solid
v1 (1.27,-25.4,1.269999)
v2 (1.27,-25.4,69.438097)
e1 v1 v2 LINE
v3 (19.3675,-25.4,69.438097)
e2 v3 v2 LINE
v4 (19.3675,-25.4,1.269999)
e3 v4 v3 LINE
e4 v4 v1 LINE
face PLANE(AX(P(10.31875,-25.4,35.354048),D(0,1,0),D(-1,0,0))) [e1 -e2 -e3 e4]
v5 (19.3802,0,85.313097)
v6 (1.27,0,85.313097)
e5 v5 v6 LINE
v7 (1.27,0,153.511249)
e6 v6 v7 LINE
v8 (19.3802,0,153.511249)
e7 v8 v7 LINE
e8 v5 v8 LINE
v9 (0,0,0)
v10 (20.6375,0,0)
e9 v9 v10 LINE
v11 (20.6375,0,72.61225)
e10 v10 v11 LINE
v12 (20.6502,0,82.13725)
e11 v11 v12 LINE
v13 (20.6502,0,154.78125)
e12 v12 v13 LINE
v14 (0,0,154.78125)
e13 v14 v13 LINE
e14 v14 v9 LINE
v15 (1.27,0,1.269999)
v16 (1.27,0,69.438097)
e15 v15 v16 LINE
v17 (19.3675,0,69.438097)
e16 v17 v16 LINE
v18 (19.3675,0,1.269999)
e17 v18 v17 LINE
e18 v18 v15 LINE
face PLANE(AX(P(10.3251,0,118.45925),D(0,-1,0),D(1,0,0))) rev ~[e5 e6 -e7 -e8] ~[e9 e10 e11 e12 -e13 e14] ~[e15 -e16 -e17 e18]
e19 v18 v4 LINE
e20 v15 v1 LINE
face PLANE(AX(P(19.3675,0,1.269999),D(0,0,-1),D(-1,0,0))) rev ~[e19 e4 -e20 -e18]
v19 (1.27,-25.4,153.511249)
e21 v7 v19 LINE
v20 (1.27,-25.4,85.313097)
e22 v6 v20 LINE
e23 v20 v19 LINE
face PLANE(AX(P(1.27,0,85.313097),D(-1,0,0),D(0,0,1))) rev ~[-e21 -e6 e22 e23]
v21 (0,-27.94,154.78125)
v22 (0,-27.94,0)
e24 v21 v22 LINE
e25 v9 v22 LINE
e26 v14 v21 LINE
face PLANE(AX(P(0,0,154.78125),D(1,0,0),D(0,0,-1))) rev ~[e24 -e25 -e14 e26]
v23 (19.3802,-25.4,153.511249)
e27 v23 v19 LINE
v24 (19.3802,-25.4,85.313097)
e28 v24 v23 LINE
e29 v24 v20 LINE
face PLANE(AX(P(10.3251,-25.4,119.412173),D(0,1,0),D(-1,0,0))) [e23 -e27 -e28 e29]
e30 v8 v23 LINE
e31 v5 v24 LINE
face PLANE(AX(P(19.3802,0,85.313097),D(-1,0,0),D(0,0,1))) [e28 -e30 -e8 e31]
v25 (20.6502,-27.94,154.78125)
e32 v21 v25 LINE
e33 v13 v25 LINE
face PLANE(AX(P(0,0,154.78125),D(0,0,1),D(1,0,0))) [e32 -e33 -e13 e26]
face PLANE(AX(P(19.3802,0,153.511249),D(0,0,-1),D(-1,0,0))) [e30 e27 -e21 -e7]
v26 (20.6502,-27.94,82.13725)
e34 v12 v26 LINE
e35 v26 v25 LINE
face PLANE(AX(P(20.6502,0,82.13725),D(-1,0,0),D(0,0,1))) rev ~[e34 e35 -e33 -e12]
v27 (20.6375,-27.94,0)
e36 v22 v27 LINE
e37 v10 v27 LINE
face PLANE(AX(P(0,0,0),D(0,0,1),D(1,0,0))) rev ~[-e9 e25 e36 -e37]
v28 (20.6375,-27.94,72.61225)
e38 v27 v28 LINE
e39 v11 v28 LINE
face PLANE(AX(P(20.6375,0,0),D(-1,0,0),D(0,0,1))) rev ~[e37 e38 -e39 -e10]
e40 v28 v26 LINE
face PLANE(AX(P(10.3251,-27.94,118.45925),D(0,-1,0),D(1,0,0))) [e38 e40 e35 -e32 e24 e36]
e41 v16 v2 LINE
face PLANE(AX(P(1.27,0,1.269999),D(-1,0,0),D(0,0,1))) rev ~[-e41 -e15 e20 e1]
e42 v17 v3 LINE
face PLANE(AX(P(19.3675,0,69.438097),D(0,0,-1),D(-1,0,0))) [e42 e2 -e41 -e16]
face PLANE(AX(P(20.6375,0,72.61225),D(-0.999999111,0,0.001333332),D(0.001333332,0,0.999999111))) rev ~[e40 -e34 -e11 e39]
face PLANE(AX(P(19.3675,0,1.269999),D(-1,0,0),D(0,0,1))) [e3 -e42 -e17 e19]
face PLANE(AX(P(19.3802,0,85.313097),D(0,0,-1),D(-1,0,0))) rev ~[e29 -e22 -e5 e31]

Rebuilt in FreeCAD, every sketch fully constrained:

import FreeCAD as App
import Part
import Sketcher

V = App.Vector
Q = App.Units.Quantity

doc = App.newDocument("Part")
body = doc.addObject("PartDesign::Body", "Body")

# Sketch on XZ plane
sketch1 = body.newObject("Sketcher::SketchObject", "Sketch")
sketch1.AttachmentSupport = (doc.getObject("XZ_Plane"), [""])
sketch1.MapMode = "FlatFace"
sketch1.addGeometry([
    Part.LineSegment(V(0, 155, 0), V(0, 0, 0)),  # 0
    Part.LineSegment(V(0, 0, 0), V(21, 0, 0)),  # 1
    Part.LineSegment(V(21, 0, 0), V(21, 73, 0)),  # 2
    Part.LineSegment(V(21, 73, 0), V(21, 82, 0)),  # 3
    Part.LineSegment(V(21, 82, 0), V(21, 155, 0)),  # 4
    Part.LineSegment(V(21, 155, 0), V(0, 155, 0)),  # 5
], False)
sketch1.addConstraint([
    Sketcher.Constraint("Coincident", 0, 2, 1, 1),
    Sketcher.Constraint("Coincident", 1, 2, 2, 1),
    Sketcher.Constraint("Coincident", 2, 2, 3, 1),
    Sketcher.Constraint("Coincident", 3, 2, 4, 1),
    Sketcher.Constraint("Coincident", 4, 2, 5, 1),
    Sketcher.Constraint("Coincident", 5, 2, 0, 1),
    Sketcher.Constraint("Vertical", 0),
    Sketcher.Constraint("Horizontal", 1),
    Sketcher.Constraint("Vertical", 2),
    Sketcher.Constraint("Vertical", 4),
    Sketcher.Constraint("Horizontal", 5),
    Sketcher.Constraint("Coincident", 0, 2, -1, 1),
    Sketcher.Constraint("DistanceY", 4, 1, 4, 2, Q("2.86 in")),
    Sketcher.Constraint("DistanceX", 1, 1, 1, 2, Q("0.8125 in")),
    Sketcher.Constraint("DistanceX", 5, 2, 5, 1, Q("0.813 in")),
    Sketcher.Constraint("DistanceY", 0, 2, 0, 1, Q("6.09375 in")),
    Sketcher.Constraint("DistanceY", 2, 2, 3, 2, Q("0.375 in")),
])
pad1 = body.newObject("PartDesign::Pad", "Pad")
pad1.Profile = sketch1
pad1.Length = Q("1.1 in")

# Sketch on XZ plane
sketch2 = body.newObject("Sketcher::SketchObject", "Sketch001")
sketch2.AttachmentSupport = (doc.getObject("XZ_Plane"), [""])
sketch2.MapMode = "FlatFace"
sketch2.addGeometry([
    Part.LineSegment(V(19, 69, 0), V(19, 1, 0)),  # 0
    Part.LineSegment(V(19, 1, 0), V(1, 1, 0)),  # 1
    Part.LineSegment(V(1, 1, 0), V(1, 69, 0)),  # 2
    Part.LineSegment(V(1, 69, 0), V(19, 69, 0)),  # 3
    Part.LineSegment(V(19, 154, 0), V(19, 85, 0)),  # 4
    Part.LineSegment(V(19, 85, 0), V(1, 85, 0)),  # 5
    Part.LineSegment(V(1, 85, 0), V(1, 154, 0)),  # 6
    Part.LineSegment(V(1, 154, 0), V(19, 154, 0)),  # 7
], False)
sketch2.addConstraint([
    Sketcher.Constraint("Coincident", 0, 2, 1, 1),
    Sketcher.Constraint("Coincident", 1, 2, 2, 1),
    Sketcher.Constraint("Coincident", 2, 2, 3, 1),
    Sketcher.Constraint("Coincident", 3, 2, 0, 1),
    Sketcher.Constraint("Coincident", 4, 2, 5, 1),
    Sketcher.Constraint("Coincident", 5, 2, 6, 1),
    Sketcher.Constraint("Coincident", 6, 2, 7, 1),
    Sketcher.Constraint("Coincident", 7, 2, 4, 1),
    Sketcher.Constraint("Vertical", 0),
    Sketcher.Constraint("Horizontal", 1),
    Sketcher.Constraint("Vertical", 2),
    Sketcher.Constraint("Horizontal", 3),
    Sketcher.Constraint("Vertical", 4),
    Sketcher.Constraint("Horizontal", 5),
    Sketcher.Constraint("Vertical", 6),
    Sketcher.Constraint("Horizontal", 7),
    Sketcher.Constraint("Vertical", 2, 2, 5, 2),
    Sketcher.Constraint("DistanceX", 5, 2, 5, 1, Q("0.713 in")),
    Sketcher.Constraint("DistanceY", -1, 1, 0, 2, Q("0.05 in")),
    Sketcher.Constraint("DistanceX", -1, 1, 1, 2, Q("0.05 in")),
    Sketcher.Constraint("DistanceX", 1, 2, 1, 1, Q("0.7125 in")),
    Sketcher.Constraint("DistanceY", 3, 2, 4, 2, Q("0.625 in")),
    Sketcher.Constraint("DistanceY", 0, 2, 0, 1, Q("68.168097 mm")),
    Sketcher.Constraint("DistanceY", 4, 2, 4, 1, Q("68.198153 mm")),
])
pocket1 = body.newObject("PartDesign::Pocket", "Pocket")
pocket1.Profile = sketch2
pocket1.Length = Q("1 in")
pocket1.Reversed = True

doc.recompute()
